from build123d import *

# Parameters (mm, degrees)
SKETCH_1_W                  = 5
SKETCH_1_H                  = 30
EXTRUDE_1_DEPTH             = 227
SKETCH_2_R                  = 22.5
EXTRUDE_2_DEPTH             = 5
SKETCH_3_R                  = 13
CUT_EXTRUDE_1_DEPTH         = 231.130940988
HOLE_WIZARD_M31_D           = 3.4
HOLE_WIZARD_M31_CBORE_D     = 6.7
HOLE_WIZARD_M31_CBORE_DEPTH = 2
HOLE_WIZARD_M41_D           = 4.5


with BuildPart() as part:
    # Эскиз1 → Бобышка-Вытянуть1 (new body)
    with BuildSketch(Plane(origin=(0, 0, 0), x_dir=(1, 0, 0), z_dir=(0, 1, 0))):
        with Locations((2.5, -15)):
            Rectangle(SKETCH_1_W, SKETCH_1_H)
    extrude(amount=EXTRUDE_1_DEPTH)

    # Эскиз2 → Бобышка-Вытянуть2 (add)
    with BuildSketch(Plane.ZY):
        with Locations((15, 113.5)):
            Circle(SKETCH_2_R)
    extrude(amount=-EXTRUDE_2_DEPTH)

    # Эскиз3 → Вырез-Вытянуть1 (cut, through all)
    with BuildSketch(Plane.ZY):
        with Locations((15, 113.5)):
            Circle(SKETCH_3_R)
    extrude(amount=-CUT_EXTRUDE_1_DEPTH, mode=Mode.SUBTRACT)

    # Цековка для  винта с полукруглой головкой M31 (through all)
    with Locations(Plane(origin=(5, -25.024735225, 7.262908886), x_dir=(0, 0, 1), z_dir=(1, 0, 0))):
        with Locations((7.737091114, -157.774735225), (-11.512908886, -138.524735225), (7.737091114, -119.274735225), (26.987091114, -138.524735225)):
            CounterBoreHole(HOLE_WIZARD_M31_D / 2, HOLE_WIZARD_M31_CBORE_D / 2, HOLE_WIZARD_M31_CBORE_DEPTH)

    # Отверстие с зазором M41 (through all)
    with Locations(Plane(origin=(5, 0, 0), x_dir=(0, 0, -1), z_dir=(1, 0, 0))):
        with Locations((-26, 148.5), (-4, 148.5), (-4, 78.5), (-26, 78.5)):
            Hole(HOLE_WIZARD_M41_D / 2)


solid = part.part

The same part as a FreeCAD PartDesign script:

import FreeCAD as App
import Part
import Sketcher
from FreeCAD import Vector

doc = App.newDocument("Part")
params = doc.addObject("Spreadsheet::Sheet", "Params")
for row, (alias, value) in enumerate([
    ("sketch1_width", "5 mm"),
    ("sketch1_height", "30 mm"),
    ("pad1_length", "227 mm"),
    ("sketch2_diameter", "45 mm"),
    ("pad2_length", "5 mm"),
    ("sketch3_diameter", "26 mm"),
    ("sketch4_diameter", "3.4 mm"),
    ("hole_diameter", "3.4 mm"),
    ("hole_cbore_diameter", "6.7 mm"),
    ("hole_cbore_depth", "2 mm"),
    ("sketch5_diameter", "4.5 mm"),
    ("hole2_diameter", "4.5 mm"),
], start=1):
    params.set(f"A{row}", alias)
    params.set(f"B{row}", "=" + value)
    params.setAlias(f"B{row}", alias)

body = doc.addObject("PartDesign::Body", "Body")

sketch1 = body.newObject("Sketcher::SketchObject", "Sketch")
sketch1.AttachmentSupport = (doc.getObject("XZ_Plane"), [""])
sketch1.MapMode = "FlatFace"
sketch1.addGeometry(Part.LineSegment(Vector(0, 0, 0), Vector(0, 30, 0)), False)
sketch1.addGeometry(Part.LineSegment(Vector(0, 30, 0), Vector(5, 30, 0)), False)
sketch1.addGeometry(Part.LineSegment(Vector(5, 30, 0), Vector(5, 0, 0)), False)
sketch1.addGeometry(Part.LineSegment(Vector(5, 0, 0), Vector(0, 0, 0)), False)
sketch1.addConstraint(Sketcher.Constraint("Coincident", 0, 2, 1, 1))
sketch1.addConstraint(Sketcher.Constraint("Coincident", 1, 2, 2, 1))
sketch1.addConstraint(Sketcher.Constraint("Coincident", 2, 2, 3, 1))
sketch1.addConstraint(Sketcher.Constraint("Coincident", 3, 2, 0, 1))
sketch1.addConstraint(Sketcher.Constraint("Vertical", 0))
sketch1.addConstraint(Sketcher.Constraint("Horizontal", 1))
sketch1.addConstraint(Sketcher.Constraint("Vertical", 2))
sketch1.addConstraint(Sketcher.Constraint("Horizontal", 3))
sketch1.addConstraint(Sketcher.Constraint("Coincident", 3, 2, -1, 1))
sketch1.addConstraint(Sketcher.Constraint("DistanceX", 1, 1, 1, 2, 5.0))
sketch1.addConstraint(Sketcher.Constraint("DistanceY", 0, 1, 0, 2, 30.0))
sketch1.setExpression("Constraints[9]", "Params.sketch1_width")
sketch1.setExpression("Constraints[10]", "Params.sketch1_height")
pad1 = body.newObject("PartDesign::Pad", "Pad")
pad1.Profile = sketch1
pad1.setExpression("Length", "Params.pad1_length")
pad1.Reversed = True

sketch2 = body.newObject("Sketcher::SketchObject", "Sketch001")
sketch2.AttachmentSupport = (doc.getObject("YZ_Plane"), [""])
sketch2.MapMode = "FlatFace"
sketch2.addGeometry(Part.Circle(Vector(113.5, 15, 0), Vector(0, 0, 1), 22.5), False)
sketch2.addConstraint(Sketcher.Constraint("Diameter", 0, 45.0))
sketch2.addConstraint(Sketcher.Constraint("DistanceY", -1, 1, 0, 3, 15.0))
sketch2.addConstraint(Sketcher.Constraint("DistanceX", -1, 1, 0, 3, 113.5))
sketch2.setExpression("Constraints[0]", "Params.sketch2_diameter")
pad2 = body.newObject("PartDesign::Pad", "Pad001")
pad2.Profile = sketch2
pad2.setExpression("Length", "Params.pad2_length")

sketch3 = body.newObject("Sketcher::SketchObject", "Sketch002")
sketch3.AttachmentSupport = (doc.getObject("YZ_Plane"), [""])
sketch3.MapMode = "FlatFace"
sketch3.addGeometry(Part.Circle(Vector(113.5, 15, 0), Vector(0, 0, 1), 13), False)
sketch3.addConstraint(Sketcher.Constraint("Diameter", 0, 26.0))
sketch3.addConstraint(Sketcher.Constraint("DistanceY", -1, 1, 0, 3, 15.0))
sketch3.addConstraint(Sketcher.Constraint("DistanceX", -1, 1, 0, 3, 113.5))
sketch3.setExpression("Constraints[0]", "Params.sketch3_diameter")
pocket1 = body.newObject("PartDesign::Pocket", "Pocket")
pocket1.Profile = sketch3
pocket1.Type = "ThroughAll"
pocket1.Reversed = True

sketch4 = body.newObject("Sketcher::SketchObject", "Sketch003")
sketch4.AttachmentSupport = (doc.getObject("YZ_Plane"), [""])
sketch4.MapMode = "FlatFace"
sketch4.AttachmentOffset = App.Placement(Vector(0, 0, 5), App.Rotation())
sketch4.addGeometry(Part.Circle(Vector(132.75, 15, 0), Vector(0, 0, 1), 1.7), False)
sketch4.addGeometry(Part.Circle(Vector(113.5, -4.25, 0), Vector(0, 0, 1), 1.7), False)
sketch4.addGeometry(Part.Circle(Vector(94.25, 15, 0), Vector(0, 0, 1), 1.7), False)
sketch4.addGeometry(Part.Circle(Vector(113.5, 34.25, 0), Vector(0, 0, 1), 1.7), False)
sketch4.addConstraint(Sketcher.Constraint("Equal", 0, 1))
sketch4.addConstraint(Sketcher.Constraint("Equal", 1, 2))
sketch4.addConstraint(Sketcher.Constraint("Equal", 2, 3))
sketch4.addConstraint(Sketcher.Constraint("Horizontal", 0, 3, 2, 3))
sketch4.addConstraint(Sketcher.Constraint("Vertical", 1, 3, 3, 3))
sketch4.addConstraint(Sketcher.Constraint("Diameter", 0, 3.4))
sketch4.addConstraint(Sketcher.Constraint("DistanceY", -1, 1, 0, 3, 15.0))
sketch4.addConstraint(Sketcher.Constraint("DistanceX", -1, 1, 1, 3, 113.5))
sketch4.addConstraint(Sketcher.Constraint("DistanceX", 2, 3, 0, 3, 38.5))
sketch4.addConstraint(Sketcher.Constraint("DistanceY", 1, 3, 3, 3, 38.5))
sketch4.addConstraint(Sketcher.Constraint("DistanceX", -1, 1, 0, 3, 132.75))
sketch4.addConstraint(Sketcher.Constraint("DistanceY", 1, 3, -1, 1, 4.25))
sketch4.setExpression("Constraints[5]", "Params.sketch4_diameter")
doc.recompute()
hole = body.newObject("PartDesign::Hole", "Hole")
hole.Profile = sketch4
hole.ThreadType = "None"
hole.setExpression("Diameter", "Params.hole_diameter")
hole.DepthType = "ThroughAll"
hole.HoleCutType = "Counterbore"
hole.setExpression("HoleCutDiameter", "Params.hole_cbore_diameter")
hole.setExpression("HoleCutDepth", "Params.hole_cbore_depth")

sketch5 = body.newObject("Sketcher::SketchObject", "Sketch004")
sketch5.AttachmentSupport = (doc.getObject("YZ_Plane"), [""])
sketch5.MapMode = "FlatFace"
sketch5.AttachmentOffset = App.Placement(Vector(0, 0, 5), App.Rotation())
sketch5.addGeometry(Part.Circle(Vector(148.5, 26, 0), Vector(0, 0, 1), 2.25), False)
sketch5.addGeometry(Part.Circle(Vector(148.5, 4, 0), Vector(0, 0, 1), 2.25), False)
sketch5.addGeometry(Part.Circle(Vector(78.5, 4, 0), Vector(0, 0, 1), 2.25), False)
sketch5.addGeometry(Part.Circle(Vector(78.5, 26, 0), Vector(0, 0, 1), 2.25), False)
sketch5.addConstraint(Sketcher.Constraint("Equal", 0, 1))
sketch5.addConstraint(Sketcher.Constraint("Equal", 1, 2))
sketch5.addConstraint(Sketcher.Constraint("Equal", 2, 3))
sketch5.addConstraint(Sketcher.Constraint("Horizontal", 1, 3, 2, 3))
sketch5.addConstraint(Sketcher.Constraint("Horizontal", 0, 3, 3, 3))
sketch5.addConstraint(Sketcher.Constraint("Vertical", 0, 3, 1, 3))
sketch5.addConstraint(Sketcher.Constraint("Vertical", 2, 3, 3, 3))
sketch5.addConstraint(Sketcher.Constraint("Diameter", 0, 4.5))
sketch5.addConstraint(Sketcher.Constraint("DistanceY", -1, 1, 0, 3, 26.0))
sketch5.addConstraint(Sketcher.Constraint("DistanceY", -1, 1, 1, 3, 4.0))
sketch5.addConstraint(Sketcher.Constraint("DistanceX", 2, 3, 1, 3, 70.0))
sketch5.addConstraint(Sketcher.Constraint("DistanceX", -1, 1, 0, 3, 148.5))
sketch5.setExpression("Constraints[7]", "Params.sketch5_diameter")
doc.recompute()
hole2 = body.newObject("PartDesign::Hole", "Hole001")
hole2.Profile = sketch5
hole2.ThreadType = "None"
hole2.setExpression("Diameter", "Params.hole2_diameter")
hole2.DepthType = "ThroughAll"

doc.recompute()
